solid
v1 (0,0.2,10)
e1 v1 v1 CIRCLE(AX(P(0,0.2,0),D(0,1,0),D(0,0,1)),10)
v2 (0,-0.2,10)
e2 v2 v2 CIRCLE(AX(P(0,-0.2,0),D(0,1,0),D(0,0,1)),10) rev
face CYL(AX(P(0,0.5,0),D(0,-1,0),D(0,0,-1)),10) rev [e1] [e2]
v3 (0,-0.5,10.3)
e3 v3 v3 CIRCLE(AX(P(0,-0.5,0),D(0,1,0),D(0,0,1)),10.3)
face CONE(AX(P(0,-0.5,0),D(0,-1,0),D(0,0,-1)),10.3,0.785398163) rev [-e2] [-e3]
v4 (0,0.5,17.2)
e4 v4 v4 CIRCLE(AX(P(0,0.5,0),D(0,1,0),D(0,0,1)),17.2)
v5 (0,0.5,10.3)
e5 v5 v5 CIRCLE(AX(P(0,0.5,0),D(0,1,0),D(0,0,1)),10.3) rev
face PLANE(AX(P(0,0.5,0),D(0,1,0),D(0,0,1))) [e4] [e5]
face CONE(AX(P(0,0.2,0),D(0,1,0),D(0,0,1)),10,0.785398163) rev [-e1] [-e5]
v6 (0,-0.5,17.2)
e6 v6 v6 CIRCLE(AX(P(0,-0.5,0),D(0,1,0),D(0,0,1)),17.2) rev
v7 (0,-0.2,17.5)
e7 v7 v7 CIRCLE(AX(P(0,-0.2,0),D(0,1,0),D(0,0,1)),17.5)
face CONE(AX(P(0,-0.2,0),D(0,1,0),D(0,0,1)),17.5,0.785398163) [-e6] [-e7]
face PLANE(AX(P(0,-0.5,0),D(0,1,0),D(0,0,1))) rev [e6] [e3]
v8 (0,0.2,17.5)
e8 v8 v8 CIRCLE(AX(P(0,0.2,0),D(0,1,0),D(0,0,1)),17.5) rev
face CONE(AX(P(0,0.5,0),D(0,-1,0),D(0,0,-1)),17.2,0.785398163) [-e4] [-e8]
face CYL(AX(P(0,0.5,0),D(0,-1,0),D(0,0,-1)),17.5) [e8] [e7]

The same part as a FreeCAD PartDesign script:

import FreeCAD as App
import Part
import Sketcher
from FreeCAD import Vector


def edges_at(feature, points):
    """Names of the edges that pass closest to the given points."""
    edges = feature.Shape.Edges
    near = lambda p: min(range(len(edges)), key=lambda i: edges[i].distToShape(Part.Vertex(*p))[0])
    return sorted({f"Edge{near(p) + 1}" for p in points})

doc = App.newDocument("Part")
body = doc.addObject("PartDesign::Body", "Body")

# Sketch on XZ plane
sketch1 = body.newObject("Sketcher::SketchObject", "Sketch")
sketch1.AttachmentSupport = (doc.getObject("XZ_Plane"), [""])
sketch1.MapMode = "FlatFace"
sketch1.addGeometry(Part.Circle(Vector(0, 0, 0), Vector(0, 0, 1), 18), False)
sketch1.addGeometry(Part.Circle(Vector(0, 0, 0), Vector(0, 0, 1), 10), False)
sketch1.addConstraint(Sketcher.Constraint("Coincident", 0, 3, -1, 1))
sketch1.addConstraint(Sketcher.Constraint("Coincident", 1, 3, -1, 1))
sketch1.addConstraint(Sketcher.Constraint("Diameter", 0, 35.0))
sketch1.addConstraint(Sketcher.Constraint("Diameter", 1, 20.0))
pad1 = body.newObject("PartDesign::Pad", "Pad")
pad1.Profile = sketch1
pad1.Length = 1
pad1.Midplane = True
doc.recompute()

chamfer = body.newObject("PartDesign::Chamfer", "Chamfer")
chamfer.Base = (pad1, edges_at(pad1, [
    (-17.5, -0.5, 0),
    (-17.5, 0.5, 0),
    (-10, -0.5, 0),
    (-10, 0.5, 0),
]))
chamfer.Size = 0.3

doc.recompute()
